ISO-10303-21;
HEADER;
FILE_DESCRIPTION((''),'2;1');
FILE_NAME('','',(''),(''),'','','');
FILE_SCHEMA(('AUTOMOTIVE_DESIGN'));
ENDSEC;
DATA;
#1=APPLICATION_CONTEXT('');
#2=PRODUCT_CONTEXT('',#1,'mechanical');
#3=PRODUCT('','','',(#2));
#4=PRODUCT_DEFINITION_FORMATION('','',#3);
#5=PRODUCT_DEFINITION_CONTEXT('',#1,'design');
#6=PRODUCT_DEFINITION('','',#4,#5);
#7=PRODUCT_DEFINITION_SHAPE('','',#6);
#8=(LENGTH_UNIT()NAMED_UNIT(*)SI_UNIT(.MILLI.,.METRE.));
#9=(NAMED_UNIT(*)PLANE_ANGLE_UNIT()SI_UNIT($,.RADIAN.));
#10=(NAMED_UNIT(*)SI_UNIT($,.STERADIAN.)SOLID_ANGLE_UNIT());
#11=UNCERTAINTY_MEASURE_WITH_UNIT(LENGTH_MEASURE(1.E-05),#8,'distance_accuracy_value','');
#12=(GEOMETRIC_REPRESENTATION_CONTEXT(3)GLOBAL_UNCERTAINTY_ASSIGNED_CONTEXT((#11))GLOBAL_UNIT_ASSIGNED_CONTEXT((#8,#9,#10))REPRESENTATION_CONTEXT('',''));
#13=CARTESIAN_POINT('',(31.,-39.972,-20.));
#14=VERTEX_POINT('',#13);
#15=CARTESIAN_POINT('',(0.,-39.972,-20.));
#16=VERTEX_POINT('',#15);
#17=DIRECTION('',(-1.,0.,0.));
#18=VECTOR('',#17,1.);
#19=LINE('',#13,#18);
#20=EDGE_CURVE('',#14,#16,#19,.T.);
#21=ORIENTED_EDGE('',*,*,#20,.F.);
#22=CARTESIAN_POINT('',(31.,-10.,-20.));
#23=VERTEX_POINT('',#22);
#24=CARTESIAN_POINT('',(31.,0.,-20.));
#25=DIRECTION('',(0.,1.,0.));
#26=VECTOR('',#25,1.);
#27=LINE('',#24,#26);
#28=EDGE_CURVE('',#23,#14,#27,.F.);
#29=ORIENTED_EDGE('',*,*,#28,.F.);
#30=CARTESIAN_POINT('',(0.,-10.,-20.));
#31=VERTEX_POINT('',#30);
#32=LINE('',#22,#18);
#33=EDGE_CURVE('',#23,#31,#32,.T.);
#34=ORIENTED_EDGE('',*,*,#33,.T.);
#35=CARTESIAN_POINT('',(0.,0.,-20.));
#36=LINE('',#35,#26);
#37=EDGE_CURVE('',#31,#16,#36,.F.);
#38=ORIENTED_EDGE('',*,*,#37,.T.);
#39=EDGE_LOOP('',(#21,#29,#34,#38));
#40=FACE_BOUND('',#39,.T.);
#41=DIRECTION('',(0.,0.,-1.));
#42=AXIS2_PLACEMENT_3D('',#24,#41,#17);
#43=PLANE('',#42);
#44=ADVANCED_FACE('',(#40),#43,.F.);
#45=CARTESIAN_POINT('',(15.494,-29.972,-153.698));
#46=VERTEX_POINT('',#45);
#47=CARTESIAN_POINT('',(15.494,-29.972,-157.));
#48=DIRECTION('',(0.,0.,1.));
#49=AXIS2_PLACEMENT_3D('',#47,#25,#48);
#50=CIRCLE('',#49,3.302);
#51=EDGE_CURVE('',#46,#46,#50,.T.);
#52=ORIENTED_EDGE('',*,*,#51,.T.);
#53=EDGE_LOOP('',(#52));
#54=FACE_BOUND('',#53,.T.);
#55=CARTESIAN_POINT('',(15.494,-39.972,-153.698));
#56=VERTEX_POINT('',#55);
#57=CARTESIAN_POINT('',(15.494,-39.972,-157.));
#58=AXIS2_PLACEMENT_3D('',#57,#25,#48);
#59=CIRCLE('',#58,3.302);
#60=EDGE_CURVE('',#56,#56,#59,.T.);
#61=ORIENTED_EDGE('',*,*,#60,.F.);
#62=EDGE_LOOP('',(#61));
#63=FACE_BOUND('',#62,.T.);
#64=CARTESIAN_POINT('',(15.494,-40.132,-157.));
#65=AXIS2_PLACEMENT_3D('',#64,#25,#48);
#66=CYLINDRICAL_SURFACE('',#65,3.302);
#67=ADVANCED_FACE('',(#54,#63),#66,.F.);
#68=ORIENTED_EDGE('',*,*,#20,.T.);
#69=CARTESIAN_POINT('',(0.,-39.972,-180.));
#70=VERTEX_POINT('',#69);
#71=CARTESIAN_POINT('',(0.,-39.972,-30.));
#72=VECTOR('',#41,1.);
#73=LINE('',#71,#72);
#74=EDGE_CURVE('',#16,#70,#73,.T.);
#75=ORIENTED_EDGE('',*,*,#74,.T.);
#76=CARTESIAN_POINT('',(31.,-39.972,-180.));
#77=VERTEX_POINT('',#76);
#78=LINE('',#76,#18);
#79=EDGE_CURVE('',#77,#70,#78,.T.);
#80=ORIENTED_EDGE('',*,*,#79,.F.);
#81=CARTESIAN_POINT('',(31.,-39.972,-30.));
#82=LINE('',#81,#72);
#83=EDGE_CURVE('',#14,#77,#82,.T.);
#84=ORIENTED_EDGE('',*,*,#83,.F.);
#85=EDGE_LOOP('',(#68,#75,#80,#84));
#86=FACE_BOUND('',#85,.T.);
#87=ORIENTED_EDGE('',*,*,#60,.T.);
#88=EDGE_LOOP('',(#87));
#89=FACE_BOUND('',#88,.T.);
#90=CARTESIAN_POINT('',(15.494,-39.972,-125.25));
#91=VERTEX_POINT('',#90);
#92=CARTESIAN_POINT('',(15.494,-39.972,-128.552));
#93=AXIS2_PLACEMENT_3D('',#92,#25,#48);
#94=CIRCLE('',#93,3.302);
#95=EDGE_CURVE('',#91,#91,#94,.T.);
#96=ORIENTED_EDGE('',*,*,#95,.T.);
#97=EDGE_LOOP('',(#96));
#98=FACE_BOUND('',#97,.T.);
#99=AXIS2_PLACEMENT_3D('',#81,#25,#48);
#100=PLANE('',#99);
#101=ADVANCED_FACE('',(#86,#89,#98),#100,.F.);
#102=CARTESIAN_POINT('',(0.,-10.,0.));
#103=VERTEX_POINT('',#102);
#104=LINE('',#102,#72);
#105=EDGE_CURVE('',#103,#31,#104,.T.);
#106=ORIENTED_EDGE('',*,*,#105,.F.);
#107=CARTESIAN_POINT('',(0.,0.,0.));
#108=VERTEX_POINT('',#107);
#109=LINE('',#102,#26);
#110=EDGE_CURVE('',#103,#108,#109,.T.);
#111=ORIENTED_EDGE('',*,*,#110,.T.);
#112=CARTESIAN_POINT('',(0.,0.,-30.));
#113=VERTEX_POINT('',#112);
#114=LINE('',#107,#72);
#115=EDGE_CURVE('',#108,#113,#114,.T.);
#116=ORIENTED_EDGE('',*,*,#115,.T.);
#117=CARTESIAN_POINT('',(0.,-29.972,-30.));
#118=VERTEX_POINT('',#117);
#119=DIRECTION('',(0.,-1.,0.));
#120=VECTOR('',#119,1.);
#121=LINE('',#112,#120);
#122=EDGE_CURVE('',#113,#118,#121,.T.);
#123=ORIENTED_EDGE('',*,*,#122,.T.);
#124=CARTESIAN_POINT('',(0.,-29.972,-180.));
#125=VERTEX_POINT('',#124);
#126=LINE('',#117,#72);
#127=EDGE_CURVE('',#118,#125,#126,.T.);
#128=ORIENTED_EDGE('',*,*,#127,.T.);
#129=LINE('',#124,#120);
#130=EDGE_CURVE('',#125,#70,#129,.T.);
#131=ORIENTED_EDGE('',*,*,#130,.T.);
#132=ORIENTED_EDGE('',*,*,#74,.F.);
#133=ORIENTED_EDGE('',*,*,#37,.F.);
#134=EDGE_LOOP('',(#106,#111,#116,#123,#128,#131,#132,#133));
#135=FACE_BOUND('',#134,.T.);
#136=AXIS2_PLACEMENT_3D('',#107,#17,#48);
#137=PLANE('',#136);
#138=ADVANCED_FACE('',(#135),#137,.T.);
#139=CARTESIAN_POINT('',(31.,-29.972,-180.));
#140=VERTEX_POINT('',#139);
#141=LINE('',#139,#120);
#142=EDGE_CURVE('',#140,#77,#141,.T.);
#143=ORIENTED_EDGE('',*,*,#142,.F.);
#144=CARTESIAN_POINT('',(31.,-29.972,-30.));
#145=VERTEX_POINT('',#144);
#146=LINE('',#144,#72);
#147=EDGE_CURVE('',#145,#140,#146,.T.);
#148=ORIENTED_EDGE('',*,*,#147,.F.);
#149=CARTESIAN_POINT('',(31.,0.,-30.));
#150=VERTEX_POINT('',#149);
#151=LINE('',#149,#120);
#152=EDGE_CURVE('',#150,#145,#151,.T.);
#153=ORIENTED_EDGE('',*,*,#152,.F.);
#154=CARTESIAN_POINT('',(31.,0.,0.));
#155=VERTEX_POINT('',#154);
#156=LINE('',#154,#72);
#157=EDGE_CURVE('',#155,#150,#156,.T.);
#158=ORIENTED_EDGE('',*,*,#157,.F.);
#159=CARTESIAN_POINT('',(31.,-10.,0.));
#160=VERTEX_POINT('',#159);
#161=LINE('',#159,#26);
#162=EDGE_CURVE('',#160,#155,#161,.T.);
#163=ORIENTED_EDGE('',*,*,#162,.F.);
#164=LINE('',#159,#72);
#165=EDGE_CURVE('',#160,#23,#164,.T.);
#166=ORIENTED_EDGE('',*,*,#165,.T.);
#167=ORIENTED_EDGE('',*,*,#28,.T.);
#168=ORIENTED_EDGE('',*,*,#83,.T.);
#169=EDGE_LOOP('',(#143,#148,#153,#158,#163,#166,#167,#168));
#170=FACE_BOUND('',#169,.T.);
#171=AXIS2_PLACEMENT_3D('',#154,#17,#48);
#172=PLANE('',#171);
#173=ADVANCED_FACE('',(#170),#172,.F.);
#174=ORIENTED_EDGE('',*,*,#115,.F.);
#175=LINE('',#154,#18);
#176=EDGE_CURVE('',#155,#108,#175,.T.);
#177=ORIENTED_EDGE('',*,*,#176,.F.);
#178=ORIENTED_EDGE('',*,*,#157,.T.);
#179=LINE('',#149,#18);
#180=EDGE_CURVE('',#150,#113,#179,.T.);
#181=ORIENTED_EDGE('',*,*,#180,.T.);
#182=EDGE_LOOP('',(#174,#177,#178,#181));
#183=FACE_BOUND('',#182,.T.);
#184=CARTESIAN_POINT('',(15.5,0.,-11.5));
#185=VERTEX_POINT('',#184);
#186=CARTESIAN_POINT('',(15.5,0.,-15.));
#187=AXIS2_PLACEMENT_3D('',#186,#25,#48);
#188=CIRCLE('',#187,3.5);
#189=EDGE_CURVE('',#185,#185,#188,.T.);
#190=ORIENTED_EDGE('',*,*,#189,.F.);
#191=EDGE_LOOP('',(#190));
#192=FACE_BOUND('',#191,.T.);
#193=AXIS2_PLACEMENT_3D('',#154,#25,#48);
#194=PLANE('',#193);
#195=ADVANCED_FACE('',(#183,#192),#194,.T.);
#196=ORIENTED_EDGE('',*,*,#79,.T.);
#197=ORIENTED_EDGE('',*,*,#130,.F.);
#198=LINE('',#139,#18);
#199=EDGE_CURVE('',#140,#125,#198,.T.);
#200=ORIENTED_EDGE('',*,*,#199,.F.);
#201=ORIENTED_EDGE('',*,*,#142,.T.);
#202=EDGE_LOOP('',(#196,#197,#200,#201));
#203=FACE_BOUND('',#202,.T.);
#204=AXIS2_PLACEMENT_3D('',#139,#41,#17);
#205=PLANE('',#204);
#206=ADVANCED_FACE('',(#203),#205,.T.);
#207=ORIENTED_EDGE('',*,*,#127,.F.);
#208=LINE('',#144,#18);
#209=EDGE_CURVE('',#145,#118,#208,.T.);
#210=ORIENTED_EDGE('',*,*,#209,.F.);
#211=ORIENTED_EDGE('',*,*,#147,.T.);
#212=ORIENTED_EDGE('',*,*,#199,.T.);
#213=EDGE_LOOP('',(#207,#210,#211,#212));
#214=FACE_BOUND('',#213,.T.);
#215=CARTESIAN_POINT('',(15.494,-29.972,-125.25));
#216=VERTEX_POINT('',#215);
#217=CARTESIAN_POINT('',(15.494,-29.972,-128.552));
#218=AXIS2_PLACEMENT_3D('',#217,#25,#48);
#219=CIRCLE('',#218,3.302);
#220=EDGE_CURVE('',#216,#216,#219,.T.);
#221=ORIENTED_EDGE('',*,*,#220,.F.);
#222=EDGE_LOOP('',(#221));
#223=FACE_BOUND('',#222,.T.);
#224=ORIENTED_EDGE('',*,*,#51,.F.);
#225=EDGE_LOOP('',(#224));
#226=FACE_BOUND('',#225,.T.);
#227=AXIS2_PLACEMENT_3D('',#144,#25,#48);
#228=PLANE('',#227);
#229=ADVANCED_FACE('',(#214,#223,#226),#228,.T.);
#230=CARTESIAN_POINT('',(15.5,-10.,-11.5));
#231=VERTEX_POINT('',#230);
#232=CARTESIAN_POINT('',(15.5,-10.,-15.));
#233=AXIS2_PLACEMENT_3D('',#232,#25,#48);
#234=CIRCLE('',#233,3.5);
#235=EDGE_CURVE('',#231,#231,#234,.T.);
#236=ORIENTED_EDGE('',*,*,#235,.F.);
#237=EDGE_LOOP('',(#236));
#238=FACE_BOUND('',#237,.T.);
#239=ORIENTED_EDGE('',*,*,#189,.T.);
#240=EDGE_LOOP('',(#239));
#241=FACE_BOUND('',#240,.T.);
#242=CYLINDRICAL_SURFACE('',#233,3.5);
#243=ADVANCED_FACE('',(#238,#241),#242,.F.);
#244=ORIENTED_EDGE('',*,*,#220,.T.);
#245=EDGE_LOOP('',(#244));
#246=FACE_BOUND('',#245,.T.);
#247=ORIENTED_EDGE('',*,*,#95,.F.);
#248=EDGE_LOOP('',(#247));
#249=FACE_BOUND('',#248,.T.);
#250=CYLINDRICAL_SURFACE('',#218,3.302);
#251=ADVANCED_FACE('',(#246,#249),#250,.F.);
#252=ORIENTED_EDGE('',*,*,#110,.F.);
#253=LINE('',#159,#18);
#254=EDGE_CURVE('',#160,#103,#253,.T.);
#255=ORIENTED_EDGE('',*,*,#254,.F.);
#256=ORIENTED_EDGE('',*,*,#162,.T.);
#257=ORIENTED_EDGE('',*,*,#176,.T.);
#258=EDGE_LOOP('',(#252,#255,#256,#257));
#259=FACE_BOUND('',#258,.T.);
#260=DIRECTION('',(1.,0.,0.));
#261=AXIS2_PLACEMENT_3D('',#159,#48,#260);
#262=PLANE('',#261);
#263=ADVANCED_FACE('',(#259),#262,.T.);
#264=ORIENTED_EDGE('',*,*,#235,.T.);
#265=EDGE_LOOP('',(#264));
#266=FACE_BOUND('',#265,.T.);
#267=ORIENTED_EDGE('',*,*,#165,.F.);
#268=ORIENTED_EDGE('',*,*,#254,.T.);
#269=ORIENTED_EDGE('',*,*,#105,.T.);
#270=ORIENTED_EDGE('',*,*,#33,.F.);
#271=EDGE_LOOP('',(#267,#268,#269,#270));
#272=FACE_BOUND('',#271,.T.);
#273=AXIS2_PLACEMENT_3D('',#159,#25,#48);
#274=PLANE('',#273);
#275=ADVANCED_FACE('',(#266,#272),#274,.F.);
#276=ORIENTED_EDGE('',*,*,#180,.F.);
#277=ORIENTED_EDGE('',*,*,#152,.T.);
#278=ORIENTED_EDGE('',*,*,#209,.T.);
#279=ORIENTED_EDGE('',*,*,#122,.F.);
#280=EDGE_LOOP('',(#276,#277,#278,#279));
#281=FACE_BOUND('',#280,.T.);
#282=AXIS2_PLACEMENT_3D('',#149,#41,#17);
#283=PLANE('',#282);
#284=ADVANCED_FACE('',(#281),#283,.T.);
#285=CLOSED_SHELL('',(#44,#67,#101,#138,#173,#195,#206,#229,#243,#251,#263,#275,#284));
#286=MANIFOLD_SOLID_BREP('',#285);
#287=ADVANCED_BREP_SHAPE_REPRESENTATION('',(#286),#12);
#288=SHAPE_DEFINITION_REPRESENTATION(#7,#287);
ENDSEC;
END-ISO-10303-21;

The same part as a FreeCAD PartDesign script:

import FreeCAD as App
import Part
import Sketcher
Q = App.Units.Quantity

doc = App.newDocument("Part")
body = doc.addObject("PartDesign::Body", "Body")

# Sketch on YZ plane
sketch1 = body.newObject("Sketcher::SketchObject", "Sketch")
sketch1.AttachmentSupport = (doc.getObject("YZ_Plane"), [""])
sketch1.MapMode = "FlatFace"
sketch1.addGeometry(Part.LineSegment(App.Vector(0, -30, 0), App.Vector(0, 0, 0)), False)
sketch1.addGeometry(Part.LineSegment(App.Vector(0, 0, 0), App.Vector(-10, 0, 0)), False)
sketch1.addGeometry(Part.LineSegment(App.Vector(-10, 0, 0), App.Vector(-10, -20, 0)), False)
sketch1.addGeometry(Part.LineSegment(App.Vector(-10, -20, 0), App.Vector(-40, -20, 0)), False)
sketch1.addGeometry(Part.LineSegment(App.Vector(-40, -20, 0), App.Vector(-40, -180, 0)), False)
sketch1.addGeometry(Part.LineSegment(App.Vector(-40, -180, 0), App.Vector(-30, -180, 0)), False)
sketch1.addGeometry(Part.LineSegment(App.Vector(-30, -180, 0), App.Vector(-30, -30, 0)), False)
sketch1.addGeometry(Part.LineSegment(App.Vector(-30, -30, 0), App.Vector(0, -30, 0)), False)
sketch1.addConstraint(Sketcher.Constraint("Coincident", 0, 2, 1, 1))
sketch1.addConstraint(Sketcher.Constraint("Coincident", 1, 2, 2, 1))
sketch1.addConstraint(Sketcher.Constraint("Coincident", 2, 2, 3, 1))
sketch1.addConstraint(Sketcher.Constraint("Coincident", 3, 2, 4, 1))
sketch1.addConstraint(Sketcher.Constraint("Coincident", 4, 2, 5, 1))
sketch1.addConstraint(Sketcher.Constraint("Coincident", 5, 2, 6, 1))
sketch1.addConstraint(Sketcher.Constraint("Coincident", 6, 2, 7, 1))
sketch1.addConstraint(Sketcher.Constraint("Coincident", 7, 2, 0, 1))
sketch1.addConstraint(Sketcher.Constraint("Vertical", 0))
sketch1.addConstraint(Sketcher.Constraint("Horizontal", 1))
sketch1.addConstraint(Sketcher.Constraint("Vertical", 2))
sketch1.addConstraint(Sketcher.Constraint("Horizontal", 3))
sketch1.addConstraint(Sketcher.Constraint("Vertical", 4))
sketch1.addConstraint(Sketcher.Constraint("Horizontal", 5))
sketch1.addConstraint(Sketcher.Constraint("Vertical", 6))
sketch1.addConstraint(Sketcher.Constraint("Horizontal", 7))
sketch1.addConstraint(Sketcher.Constraint("Coincident", 0, 2, -1, 1))
sketch1.addConstraint(Sketcher.Constraint("Equal", 1, 5))
sketch1.addConstraint(Sketcher.Constraint("DistanceX", 1, 2, 1, 1, Q("10 mm")))
sketch1.addConstraint(Sketcher.Constraint("DistanceY", 0, 1, 0, 2, Q("30 mm")))
sketch1.addConstraint(Sketcher.Constraint("DistanceY", 2, 2, 2, 1, Q("20 mm")))
sketch1.addConstraint(Sketcher.Constraint("DistanceY", 4, 2, 4, 1, Q("160 mm")))
sketch1.addConstraint(Sketcher.Constraint("DistanceX", 3, 2, 3, 1, Q("29.972 mm")))
pad1 = body.newObject("PartDesign::Pad", "Pad")
pad1.Profile = sketch1
pad1.Length = 31

# Sketch on XZ plane
sketch2 = body.newObject("Sketcher::SketchObject", "Sketch001")
sketch2.AttachmentSupport = (doc.getObject("XZ_Plane"), [""])
sketch2.MapMode = "FlatFace"
sketch2.addGeometry(Part.Circle(App.Vector(15.5, -15, 0), App.Vector(0, 0, 1), 3.5), False)
sketch2.addConstraint(Sketcher.Constraint("Diameter", 0, Q("7 mm")))
sketch2.addConstraint(Sketcher.Constraint("DistanceY", 0, 3, -1, 1, Q("15 mm")))
sketch2.addConstraint(Sketcher.Constraint("DistanceX", -1, 1, 0, 3, Q("15.5 mm")))
pocket1 = body.newObject("PartDesign::Pocket", "Pocket")
pocket1.Profile = sketch2
pocket1.Length = 10
pocket1.Reversed = True

# Sketch on XZ plane
sketch3 = body.newObject("Sketcher::SketchObject", "Sketch002")
sketch3.AttachmentSupport = (doc.getObject("XZ_Plane"), [""])
sketch3.MapMode = "FlatFace"
sketch3.AttachmentOffset = App.Placement(App.Vector(0, 0, 29.972), App.Rotation())
sketch3.addGeometry(Part.Circle(App.Vector(15.5, -157, 0), App.Vector(0, 0, 1), 3.3), False)
sketch3.addConstraint(Sketcher.Constraint("Diameter", 0, Q("6.604 mm")))
sketch3.addConstraint(Sketcher.Constraint("DistanceY", 0, 3, -1, 1, Q("157 mm")))
sketch3.addConstraint(Sketcher.Constraint("DistanceX", -1, 1, 0, 3, Q("15.494 mm")))
pocket2 = body.newObject("PartDesign::Pocket", "Pocket001")
pocket2.Profile = sketch3
pocket2.Length = 10.16
pocket2.Reversed = True

# Sketch on XZ plane
sketch4 = body.newObject("Sketcher::SketchObject", "Sketch003")
sketch4.AttachmentSupport = (doc.getObject("XZ_Plane"), [""])
sketch4.MapMode = "FlatFace"
sketch4.AttachmentOffset = App.Placement(App.Vector(0, 0, 29.972), App.Rotation())
sketch4.addGeometry(Part.Circle(App.Vector(15.5, -128.6, 0), App.Vector(0, 0, 1), 3.3), False)
sketch4.addConstraint(Sketcher.Constraint("Diameter", 0, Q("6.604 mm")))
sketch4.addConstraint(Sketcher.Constraint("DistanceX", -1, 1, 0, 3, Q("15.494 mm")))
sketch4.addConstraint(Sketcher.Constraint("DistanceY", 0, 3, -1, 1, Q("128.552 mm")))
doc.recompute()
hole = body.newObject("PartDesign::Hole", "Hole")
hole.Profile = sketch4
hole.ThreadType = "None"
hole.Diameter = 6.604
hole.DepthType = "Dimension"
hole.Depth = 25.4
hole.DrillPoint = "Angled"
hole.DrillPointAngle = 118
hole.Reversed = True

doc.recompute()
